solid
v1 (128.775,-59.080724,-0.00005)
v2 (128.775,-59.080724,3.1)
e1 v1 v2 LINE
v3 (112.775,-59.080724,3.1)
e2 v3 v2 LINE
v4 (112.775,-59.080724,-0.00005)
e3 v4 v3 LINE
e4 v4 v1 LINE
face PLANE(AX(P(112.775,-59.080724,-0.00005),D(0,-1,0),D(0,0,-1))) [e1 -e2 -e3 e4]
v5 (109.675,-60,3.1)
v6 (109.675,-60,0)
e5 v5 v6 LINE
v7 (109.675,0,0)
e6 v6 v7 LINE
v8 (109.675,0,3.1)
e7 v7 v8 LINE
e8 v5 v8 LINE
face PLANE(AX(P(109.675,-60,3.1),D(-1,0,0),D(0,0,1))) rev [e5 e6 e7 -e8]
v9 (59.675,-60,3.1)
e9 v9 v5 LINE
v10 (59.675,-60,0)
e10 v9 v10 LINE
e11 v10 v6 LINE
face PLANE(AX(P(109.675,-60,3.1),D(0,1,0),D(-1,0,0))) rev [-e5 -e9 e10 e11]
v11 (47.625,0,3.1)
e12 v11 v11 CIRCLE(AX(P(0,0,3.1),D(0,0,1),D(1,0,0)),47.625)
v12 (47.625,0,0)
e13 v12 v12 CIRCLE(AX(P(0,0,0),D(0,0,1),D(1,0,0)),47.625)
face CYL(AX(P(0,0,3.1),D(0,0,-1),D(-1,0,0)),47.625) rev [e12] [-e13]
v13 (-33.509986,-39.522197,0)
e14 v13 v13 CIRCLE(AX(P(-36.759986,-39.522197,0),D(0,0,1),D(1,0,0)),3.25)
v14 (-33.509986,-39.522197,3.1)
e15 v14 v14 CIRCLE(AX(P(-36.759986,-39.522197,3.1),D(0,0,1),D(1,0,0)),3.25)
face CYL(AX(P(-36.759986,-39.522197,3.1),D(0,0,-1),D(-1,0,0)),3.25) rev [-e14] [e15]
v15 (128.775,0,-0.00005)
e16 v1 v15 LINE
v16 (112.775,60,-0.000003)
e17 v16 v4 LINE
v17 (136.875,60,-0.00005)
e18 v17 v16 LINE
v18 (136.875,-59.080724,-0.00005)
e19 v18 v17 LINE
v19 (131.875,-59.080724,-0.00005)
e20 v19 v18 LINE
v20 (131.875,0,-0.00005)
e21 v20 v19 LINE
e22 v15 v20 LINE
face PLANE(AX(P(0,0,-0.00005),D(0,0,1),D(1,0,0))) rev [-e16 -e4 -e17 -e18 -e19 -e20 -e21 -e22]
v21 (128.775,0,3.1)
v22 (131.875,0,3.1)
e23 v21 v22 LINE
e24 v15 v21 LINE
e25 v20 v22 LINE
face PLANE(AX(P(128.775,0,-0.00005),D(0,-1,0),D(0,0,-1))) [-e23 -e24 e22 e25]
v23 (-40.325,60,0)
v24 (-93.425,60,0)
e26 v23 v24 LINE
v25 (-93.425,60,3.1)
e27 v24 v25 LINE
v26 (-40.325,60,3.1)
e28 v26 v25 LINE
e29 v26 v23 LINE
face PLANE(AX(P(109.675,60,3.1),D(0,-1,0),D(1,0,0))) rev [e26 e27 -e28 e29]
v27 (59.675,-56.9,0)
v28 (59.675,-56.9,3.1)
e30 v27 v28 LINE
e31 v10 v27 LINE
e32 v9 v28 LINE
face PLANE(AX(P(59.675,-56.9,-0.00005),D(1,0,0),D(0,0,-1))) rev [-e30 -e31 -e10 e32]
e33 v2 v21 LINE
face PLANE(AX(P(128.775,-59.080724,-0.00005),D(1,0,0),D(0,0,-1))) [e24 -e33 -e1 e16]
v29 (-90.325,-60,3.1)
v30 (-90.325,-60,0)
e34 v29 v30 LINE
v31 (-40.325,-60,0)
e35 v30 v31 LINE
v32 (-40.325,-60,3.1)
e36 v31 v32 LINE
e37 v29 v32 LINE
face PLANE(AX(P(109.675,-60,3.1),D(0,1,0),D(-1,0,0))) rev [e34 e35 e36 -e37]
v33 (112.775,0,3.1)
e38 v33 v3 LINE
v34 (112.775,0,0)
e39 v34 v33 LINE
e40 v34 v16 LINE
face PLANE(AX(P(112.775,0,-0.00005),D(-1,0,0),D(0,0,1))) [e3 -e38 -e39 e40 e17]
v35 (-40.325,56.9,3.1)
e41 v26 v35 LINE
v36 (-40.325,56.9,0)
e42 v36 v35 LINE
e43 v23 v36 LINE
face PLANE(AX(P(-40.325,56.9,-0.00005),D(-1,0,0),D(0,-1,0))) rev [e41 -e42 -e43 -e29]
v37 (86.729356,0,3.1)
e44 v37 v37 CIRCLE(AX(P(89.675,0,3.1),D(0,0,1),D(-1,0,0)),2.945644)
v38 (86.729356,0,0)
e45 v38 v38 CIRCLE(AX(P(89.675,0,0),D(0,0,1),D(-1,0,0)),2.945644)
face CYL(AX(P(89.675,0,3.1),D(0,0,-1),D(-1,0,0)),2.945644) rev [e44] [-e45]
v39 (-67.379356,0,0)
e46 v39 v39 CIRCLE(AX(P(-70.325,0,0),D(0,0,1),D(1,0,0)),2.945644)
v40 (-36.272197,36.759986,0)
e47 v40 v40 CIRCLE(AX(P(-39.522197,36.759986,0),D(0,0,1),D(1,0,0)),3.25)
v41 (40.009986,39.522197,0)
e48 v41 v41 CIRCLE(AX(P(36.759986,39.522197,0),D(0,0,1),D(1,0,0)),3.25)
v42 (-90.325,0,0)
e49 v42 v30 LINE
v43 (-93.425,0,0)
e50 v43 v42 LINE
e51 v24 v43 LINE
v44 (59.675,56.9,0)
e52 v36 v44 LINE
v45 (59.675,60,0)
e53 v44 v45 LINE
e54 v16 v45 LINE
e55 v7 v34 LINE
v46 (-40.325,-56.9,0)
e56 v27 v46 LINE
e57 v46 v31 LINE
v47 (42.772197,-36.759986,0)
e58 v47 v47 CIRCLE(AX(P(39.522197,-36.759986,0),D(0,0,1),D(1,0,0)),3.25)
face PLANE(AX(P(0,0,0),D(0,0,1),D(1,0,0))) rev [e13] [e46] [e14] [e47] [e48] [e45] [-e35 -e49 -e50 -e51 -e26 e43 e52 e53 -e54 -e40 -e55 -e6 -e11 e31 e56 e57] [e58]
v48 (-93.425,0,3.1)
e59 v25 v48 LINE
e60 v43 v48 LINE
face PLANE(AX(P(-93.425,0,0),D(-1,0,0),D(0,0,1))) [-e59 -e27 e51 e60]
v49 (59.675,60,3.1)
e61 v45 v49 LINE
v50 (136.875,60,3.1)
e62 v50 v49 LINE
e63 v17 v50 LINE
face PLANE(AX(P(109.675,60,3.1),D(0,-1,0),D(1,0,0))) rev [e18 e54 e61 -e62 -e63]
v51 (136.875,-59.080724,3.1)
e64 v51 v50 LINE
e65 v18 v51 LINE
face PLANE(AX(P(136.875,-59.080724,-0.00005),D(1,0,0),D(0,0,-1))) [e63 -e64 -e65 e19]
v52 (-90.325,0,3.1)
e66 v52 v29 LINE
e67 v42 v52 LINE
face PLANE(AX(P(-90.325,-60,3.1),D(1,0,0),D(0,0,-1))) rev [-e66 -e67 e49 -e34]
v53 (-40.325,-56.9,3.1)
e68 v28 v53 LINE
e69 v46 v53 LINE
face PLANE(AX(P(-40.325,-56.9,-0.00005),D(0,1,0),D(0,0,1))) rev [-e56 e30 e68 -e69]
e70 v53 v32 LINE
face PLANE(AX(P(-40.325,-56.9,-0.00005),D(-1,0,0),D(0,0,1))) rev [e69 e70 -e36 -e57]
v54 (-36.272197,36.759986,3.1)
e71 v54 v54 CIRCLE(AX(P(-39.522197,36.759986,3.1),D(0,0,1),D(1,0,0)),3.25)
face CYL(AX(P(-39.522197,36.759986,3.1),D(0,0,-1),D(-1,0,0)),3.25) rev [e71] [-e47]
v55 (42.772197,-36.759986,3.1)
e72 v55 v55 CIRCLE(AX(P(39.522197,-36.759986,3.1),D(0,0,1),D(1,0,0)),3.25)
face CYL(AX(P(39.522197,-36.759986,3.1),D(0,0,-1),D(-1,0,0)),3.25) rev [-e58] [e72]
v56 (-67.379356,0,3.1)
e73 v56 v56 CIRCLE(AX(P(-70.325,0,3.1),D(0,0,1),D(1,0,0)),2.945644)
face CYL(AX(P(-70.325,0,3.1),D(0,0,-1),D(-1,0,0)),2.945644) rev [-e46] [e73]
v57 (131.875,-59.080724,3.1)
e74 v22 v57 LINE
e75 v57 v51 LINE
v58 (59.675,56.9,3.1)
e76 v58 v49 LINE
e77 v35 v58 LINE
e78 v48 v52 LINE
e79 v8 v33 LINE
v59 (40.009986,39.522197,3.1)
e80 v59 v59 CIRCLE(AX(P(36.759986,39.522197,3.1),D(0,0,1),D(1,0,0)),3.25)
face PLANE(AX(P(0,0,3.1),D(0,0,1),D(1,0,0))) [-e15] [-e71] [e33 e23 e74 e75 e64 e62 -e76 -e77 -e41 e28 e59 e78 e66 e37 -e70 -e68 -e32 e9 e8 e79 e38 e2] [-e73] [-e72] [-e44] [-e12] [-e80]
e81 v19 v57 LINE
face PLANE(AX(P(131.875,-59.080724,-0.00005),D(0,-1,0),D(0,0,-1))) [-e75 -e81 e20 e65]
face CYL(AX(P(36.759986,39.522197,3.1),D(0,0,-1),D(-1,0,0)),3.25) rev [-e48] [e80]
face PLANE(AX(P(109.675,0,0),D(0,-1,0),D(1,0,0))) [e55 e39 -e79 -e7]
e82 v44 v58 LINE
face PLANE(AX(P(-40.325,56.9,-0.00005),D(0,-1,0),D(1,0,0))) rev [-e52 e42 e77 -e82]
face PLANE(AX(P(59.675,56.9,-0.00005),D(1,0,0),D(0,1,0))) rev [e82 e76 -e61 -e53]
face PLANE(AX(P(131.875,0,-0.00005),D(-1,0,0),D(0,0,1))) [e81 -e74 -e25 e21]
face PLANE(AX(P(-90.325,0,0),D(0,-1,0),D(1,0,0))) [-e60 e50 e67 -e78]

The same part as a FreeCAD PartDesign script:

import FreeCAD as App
import Part
import Sketcher

V = App.Vector


def add_polygon(sketch, points):
    """Adds a closed chain of lines whose ends are joined by coincident constraints."""
    first, n = sketch.GeometryCount, len(points)
    for a, b in zip(points, points[1:] + points[:1]):
        sketch.addGeometry(Part.LineSegment(App.Vector(*a, 0), App.Vector(*b, 0)), False)
    for i in range(n):
        sketch.addConstraint(Sketcher.Constraint("Coincident", first + i, 2, first + (i + 1) % n, 1))

doc = App.newDocument("Part")
body = doc.addObject("PartDesign::Body", "Body")

sketch1 = doc.addObject("Sketcher::SketchObject", "Sketch")
body.addObject(sketch1)
sketch1.AttachmentSupport = (doc.XY_Plane, [""])
sketch1.MapMode = "FlatFace"
add_polygon(sketch1, [(-90.325, 60), (-90.325, -60), (109.675, -60), (109.675, 60)])
sketch1.addGeometry(Part.Circle(V(-36.759986, -39.522197, 0), V(0, 0, 1), 3.25), False)
sketch1.addGeometry(Part.Circle(V(39.522197, -36.759986, 0), V(0, 0, 1), 3.25), False)
sketch1.addGeometry(Part.Circle(V(-70.325, 0, 0), V(0, 0, 1), 2.945644), False)
sketch1.addGeometry(Part.Circle(V(0, 0, 0), V(0, 0, 1), 47.625), False)
sketch1.addGeometry(Part.Circle(V(-39.522197, 36.759986, 0), V(0, 0, 1), 3.25), False)
sketch1.addGeometry(Part.Circle(V(89.675, 0, 0), V(0, 0, 1), 2.945644), False)
sketch1.addGeometry(Part.Circle(V(36.759986, 39.522197, 0), V(0, 0, 1), 3.25), False)
sketch1.addConstraint([
    Sketcher.Constraint("Vertical", 0),
    Sketcher.Constraint("Horizontal", 1),
    Sketcher.Constraint("Vertical", 2),
    Sketcher.Constraint("Horizontal", 3),
    Sketcher.Constraint("Coincident", 7, 3, -1, 1),
    Sketcher.Constraint("Equal", 4, 5),
    Sketcher.Constraint("Equal", 5, 8),
    Sketcher.Constraint("Equal", 6, 9),
    Sketcher.Constraint("Equal", 8, 10),
    Sketcher.Constraint("Symmetric", 5, 3, 8, 3, -1, 1),
    Sketcher.Constraint("Symmetric", 4, 3, 10, 3, -1, 1),
    Sketcher.Constraint("PointOnObject", 6, 3, -1),
    Sketcher.Constraint("PointOnObject", 9, 3, -1),
    Sketcher.Constraint("Diameter", 4, 6.5),
    Sketcher.Constraint("Diameter", 7, 95.25),
    Sketcher.Constraint("DistanceX", 1, 1, 1, 2, 200.0),
    Sketcher.Constraint("DistanceY", 0, 2, 0, 1, 120.0),
    Sketcher.Constraint("DistanceY", 0, 2, -1, 1, 60.0),
    Sketcher.Constraint("DistanceX", 6, 3, 9, 3, 160.0),
    Sketcher.Constraint("DistanceX", 0, 2, 6, 3, 20.0),
    Sketcher.Constraint("Diameter", 6, 5.891287),
    Sketcher.Constraint("DistanceX", 6, 3, -1, 1, 70.325),
    Sketcher.Constraint("DistanceY", 4, 3, 5, 3, 2.762211),
    Sketcher.Constraint("DistanceX", 8, 3, 4, 3, 2.762211),
    Sketcher.Constraint("DistanceX", 4, 3, -1, 1, 36.759986),
    Sketcher.Constraint("DistanceY", 4, 3, -1, 1, 39.522197),
])
pad1 = doc.addObject("PartDesign::Pad", "Pad")
body.addObject(pad1)
pad1.Profile = sketch1
pad1.Length = 3.1

sketch2 = doc.addObject("Sketcher::SketchObject", "Sketch001")
body.addObject(sketch2)
sketch2.AttachmentSupport = (doc.XY_Plane, [""])
sketch2.MapMode = "FlatFace"
sketch2.AttachmentOffset = App.Placement(V(0, 0, 3.1), App.Rotation())
add_polygon(sketch2, [(-93.425, 60), (-93.425, 0), (-90.325, 0), (-90.325, 60)])
add_polygon(sketch2, [(109.675, 60), (109.675, 0), (112.775, 0), (112.775, 60)])
sketch2.addConstraint([
    Sketcher.Constraint("Vertical", 0),
    Sketcher.Constraint("Horizontal", 1),
    Sketcher.Constraint("Vertical", 2),
    Sketcher.Constraint("Horizontal", 3),
    Sketcher.Constraint("Vertical", 4),
    Sketcher.Constraint("Horizontal", 5),
    Sketcher.Constraint("Vertical", 6),
    Sketcher.Constraint("Horizontal", 7),
    Sketcher.Constraint("PointOnObject", 0, 2, -1),
    Sketcher.Constraint("PointOnObject", 4, 2, -1),
    Sketcher.Constraint("Horizontal", 3, 2, 6, 2),
    Sketcher.Constraint("Equal", 3, 5),
    Sketcher.Constraint("DistanceY", 0, 2, 0, 1, 60.0),
    Sketcher.Constraint("DistanceX", 1, 1, 1, 2, 3.1),
    Sketcher.Constraint("DistanceX", 1, 2, 4, 2, 200.0),
    Sketcher.Constraint("DistanceX", 0, 2, -1, 1, 93.425),
])
pad2 = doc.addObject("PartDesign::Pad", "Pad001")
body.addObject(pad2)
pad2.Profile = sketch2
pad2.Length = 3.1
pad2.Reversed = True

sketch3 = doc.addObject("Sketcher::SketchObject", "Sketch002")
body.addObject(sketch3)
sketch3.AttachmentSupport = (doc.XY_Plane, [""])
sketch3.MapMode = "FlatFace"
sketch3.AttachmentOffset = App.Placement(V(0, 0, 3.1), App.Rotation())
add_polygon(sketch3, [(-40.325, -56.9), (-40.325, -60), (59.675, -60), (59.675, -56.9)])
add_polygon(sketch3, [(-40.325, 60), (-40.325, 56.9), (59.675, 56.9), (59.675, 60)])
sketch3.addConstraint([
    Sketcher.Constraint("Vertical", 0),
    Sketcher.Constraint("Horizontal", 1),
    Sketcher.Constraint("Vertical", 2),
    Sketcher.Constraint("Horizontal", 3),
    Sketcher.Constraint("Vertical", 4),
    Sketcher.Constraint("Horizontal", 5),
    Sketcher.Constraint("Vertical", 6),
    Sketcher.Constraint("Horizontal", 7),
    Sketcher.Constraint("Symmetric", 3, 2, 4, 2, -1),
    Sketcher.Constraint("Symmetric", 1, 2, 6, 2, -1),
    Sketcher.Constraint("DistanceX", 1, 1, 1, 2, 100.0),
    Sketcher.Constraint("DistanceY", 0, 2, 0, 1, 3.1),
    Sketcher.Constraint("DistanceY", 0, 2, -1, 1, 60.0),
    Sketcher.Constraint("DistanceX", 0, 2, -1, 1, 40.325),
])
pocket1 = doc.addObject("PartDesign::Pocket", "Pocket")
body.addObject(pocket1)
pocket1.Profile = sketch3
pocket1.Type = "ThroughAll"

sketch4 = doc.addObject("Sketcher::SketchObject", "Sketch003")
body.addObject(sketch4)
sketch4.AttachmentSupport = (doc.XY_Plane, [""])
sketch4.MapMode = "FlatFace"
sketch4.AttachmentOffset = App.Placement(V(0, 0, 3.1), App.Rotation())
add_polygon(sketch4, [(112.775, -59.080724), (128.775, -59.080724), (128.775, 0), (131.875, 0), (131.875, -59.080724), (136.875, -59.080724), (136.875, 60), (112.775, 60)])
sketch4.addConstraint([
    Sketcher.Constraint("Horizontal", 0),
    Sketcher.Constraint("Vertical", 1),
    Sketcher.Constraint("Horizontal", 2),
    Sketcher.Constraint("Vertical", 3),
    Sketcher.Constraint("Horizontal", 4),
    Sketcher.Constraint("Vertical", 5),
    Sketcher.Constraint("Horizontal", 6),
    Sketcher.Constraint("Vertical", 7),
    Sketcher.Constraint("PointOnObject", 1, 2, -1),
    Sketcher.Constraint("Horizontal", 0, 2, 3, 2),
    Sketcher.Constraint("DistanceX", 0, 1, 0, 2, 16.0),
    Sketcher.Constraint("DistanceX", 4, 1, 4, 2, 5.0),
    Sketcher.Constraint("DistanceX", 2, 1, 2, 2, 3.1),
    Sketcher.Constraint("DistanceY", -1, 1, 5, 2, 60.0),
    Sketcher.Constraint("DistanceX", -1, 1, 0, 2, 128.775),
    Sketcher.Constraint("DistanceY", 1, 1, 1, 2, 59.080724),
])
pad3 = doc.addObject("PartDesign::Pad", "Pad002")
body.addObject(pad3)
pad3.Profile = sketch4
pad3.Length = 3.1
pad3.Reversed = True

doc.recompute()
